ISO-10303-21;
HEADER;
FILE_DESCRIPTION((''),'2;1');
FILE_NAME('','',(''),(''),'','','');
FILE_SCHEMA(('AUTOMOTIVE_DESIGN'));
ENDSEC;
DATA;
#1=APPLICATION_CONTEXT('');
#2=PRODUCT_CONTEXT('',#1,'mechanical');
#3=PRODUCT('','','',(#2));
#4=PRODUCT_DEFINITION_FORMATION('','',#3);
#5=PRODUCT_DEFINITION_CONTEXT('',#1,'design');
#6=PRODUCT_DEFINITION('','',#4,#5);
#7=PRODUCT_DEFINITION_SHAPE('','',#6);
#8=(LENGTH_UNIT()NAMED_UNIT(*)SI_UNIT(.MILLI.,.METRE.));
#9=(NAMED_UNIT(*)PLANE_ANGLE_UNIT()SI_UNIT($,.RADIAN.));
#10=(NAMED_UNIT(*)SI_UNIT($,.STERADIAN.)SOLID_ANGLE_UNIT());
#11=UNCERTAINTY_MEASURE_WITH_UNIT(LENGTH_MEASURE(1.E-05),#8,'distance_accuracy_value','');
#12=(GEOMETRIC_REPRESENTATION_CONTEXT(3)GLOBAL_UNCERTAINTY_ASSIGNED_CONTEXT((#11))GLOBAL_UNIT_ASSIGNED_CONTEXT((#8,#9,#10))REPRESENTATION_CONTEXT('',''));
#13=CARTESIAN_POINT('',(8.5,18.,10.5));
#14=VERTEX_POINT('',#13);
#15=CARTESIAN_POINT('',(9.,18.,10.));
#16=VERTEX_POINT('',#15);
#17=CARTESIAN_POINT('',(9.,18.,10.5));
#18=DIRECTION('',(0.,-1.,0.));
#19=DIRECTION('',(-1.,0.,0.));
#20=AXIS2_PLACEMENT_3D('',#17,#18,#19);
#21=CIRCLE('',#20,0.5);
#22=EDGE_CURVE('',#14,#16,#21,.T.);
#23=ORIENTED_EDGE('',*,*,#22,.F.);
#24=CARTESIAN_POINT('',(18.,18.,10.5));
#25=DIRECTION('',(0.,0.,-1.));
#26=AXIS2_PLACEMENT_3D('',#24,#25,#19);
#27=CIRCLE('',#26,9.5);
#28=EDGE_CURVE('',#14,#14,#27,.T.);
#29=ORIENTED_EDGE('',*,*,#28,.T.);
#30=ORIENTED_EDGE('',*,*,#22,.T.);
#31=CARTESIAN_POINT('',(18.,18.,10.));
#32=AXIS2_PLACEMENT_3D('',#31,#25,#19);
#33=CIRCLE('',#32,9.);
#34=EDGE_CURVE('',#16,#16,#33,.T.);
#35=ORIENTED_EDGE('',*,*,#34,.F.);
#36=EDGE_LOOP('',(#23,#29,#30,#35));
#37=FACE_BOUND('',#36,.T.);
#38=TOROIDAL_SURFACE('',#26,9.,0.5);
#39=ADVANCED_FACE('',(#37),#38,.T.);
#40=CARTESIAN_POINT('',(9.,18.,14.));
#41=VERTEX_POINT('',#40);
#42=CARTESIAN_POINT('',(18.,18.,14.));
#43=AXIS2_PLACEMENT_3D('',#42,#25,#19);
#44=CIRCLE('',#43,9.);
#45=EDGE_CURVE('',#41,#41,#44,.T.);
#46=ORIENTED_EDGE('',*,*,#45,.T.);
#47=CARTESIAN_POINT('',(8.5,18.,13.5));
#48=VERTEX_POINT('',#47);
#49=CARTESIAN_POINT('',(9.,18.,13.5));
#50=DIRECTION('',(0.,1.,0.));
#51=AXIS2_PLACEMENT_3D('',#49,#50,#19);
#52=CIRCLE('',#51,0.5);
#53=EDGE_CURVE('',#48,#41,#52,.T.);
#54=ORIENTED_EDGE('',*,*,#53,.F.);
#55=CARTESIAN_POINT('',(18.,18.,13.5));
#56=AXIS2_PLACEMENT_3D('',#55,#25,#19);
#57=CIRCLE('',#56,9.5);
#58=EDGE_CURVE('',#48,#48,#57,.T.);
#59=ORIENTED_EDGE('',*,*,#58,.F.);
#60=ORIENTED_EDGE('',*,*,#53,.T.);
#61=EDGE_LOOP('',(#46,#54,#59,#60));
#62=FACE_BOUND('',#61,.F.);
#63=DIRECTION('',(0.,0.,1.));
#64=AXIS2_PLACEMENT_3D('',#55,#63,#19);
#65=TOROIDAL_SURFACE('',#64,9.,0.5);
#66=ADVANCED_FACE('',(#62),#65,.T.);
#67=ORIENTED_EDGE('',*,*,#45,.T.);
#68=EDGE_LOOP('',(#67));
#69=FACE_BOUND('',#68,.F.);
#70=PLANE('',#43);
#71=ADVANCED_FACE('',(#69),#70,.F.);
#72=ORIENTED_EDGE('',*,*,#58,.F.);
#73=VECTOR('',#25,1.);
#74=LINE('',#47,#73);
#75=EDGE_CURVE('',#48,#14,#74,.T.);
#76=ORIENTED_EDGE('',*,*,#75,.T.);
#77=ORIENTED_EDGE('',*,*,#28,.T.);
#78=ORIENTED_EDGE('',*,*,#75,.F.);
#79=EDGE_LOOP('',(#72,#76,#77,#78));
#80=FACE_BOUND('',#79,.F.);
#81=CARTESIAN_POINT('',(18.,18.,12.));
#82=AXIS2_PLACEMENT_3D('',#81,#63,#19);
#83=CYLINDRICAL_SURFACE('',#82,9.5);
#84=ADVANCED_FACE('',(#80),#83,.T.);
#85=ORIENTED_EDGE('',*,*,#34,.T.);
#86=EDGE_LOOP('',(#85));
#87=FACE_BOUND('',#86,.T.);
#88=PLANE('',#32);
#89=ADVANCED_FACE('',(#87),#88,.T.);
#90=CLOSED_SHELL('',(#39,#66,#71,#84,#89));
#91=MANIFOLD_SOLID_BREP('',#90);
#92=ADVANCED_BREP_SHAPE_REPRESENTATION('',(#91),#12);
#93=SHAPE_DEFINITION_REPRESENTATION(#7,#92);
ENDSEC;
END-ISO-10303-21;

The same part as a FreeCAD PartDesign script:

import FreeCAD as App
import Part
import Sketcher
from FreeCAD import Vector
Q = App.Units.Quantity


def edges_at(feature, points):
    """Names of the edges that pass closest to the given points."""
    edges = feature.Shape.Edges
    near = lambda p: min(range(len(edges)), key=lambda i: edges[i].distToShape(Part.Vertex(*p))[0])
    return sorted({f"Edge{near(p) + 1}" for p in points})

doc = App.newDocument("Part")
body = doc.addObject("PartDesign::Body", "Body")

sketch1 = body.newObject("Sketcher::SketchObject", "Sketch")
sketch1.AttachmentSupport = (doc.getObject("XY_Plane"), [""])
sketch1.MapMode = "FlatFace"
sketch1.AttachmentOffset = App.Placement(Vector(0, 0, 12), App.Rotation())
sketch1.addGeometry(Part.Circle(Vector(0, 0, 0), Vector(0, 0, 1), 10), False)
sketch1.addConstraint(Sketcher.Constraint("Coincident", 0, 3, -1, 1))
sketch1.addConstraint(Sketcher.Constraint("Diameter", 0, Q("19 mm")))
pad1 = body.newObject("PartDesign::Pad", "Pad")
pad1.Profile = sketch1
pad1.Length = 2
doc.recompute()

fillet = body.newObject("PartDesign::Fillet", "Fillet")
fillet.Base = (pad1, edges_at(pad1, [(-9.5, 0, 14)]))
fillet.Radius = 0.5
body2 = doc.addObject("PartDesign::Body", "Body001")

sketch2 = body2.newObject("Sketcher::SketchObject", "Sketch001")
sketch2.AttachmentSupport = (doc.getObject("XY_Plane001"), [""])
sketch2.MapMode = "FlatFace"
sketch2.AttachmentOffset = App.Placement(Vector(0, 0, 11), App.Rotation())
sketch2.addGeometry(Part.Circle(Vector(0, 0, 0), Vector(0, 0, 1), 10), False)
sketch2.addConstraint(Sketcher.Constraint("Coincident", 0, 3, -1, 1))
sketch2.addConstraint(Sketcher.Constraint("Diameter", 0, Q("19 mm")))
pad2 = body2.newObject("PartDesign::Pad", "Pad001")
pad2.Profile = sketch2
pad2.Length = 2
doc.recompute()

fillet2 = body2.newObject("PartDesign::Fillet", "Fillet001")
fillet2.Base = (pad2, edges_at(pad2, [(-9.5, 0, 11)]))
fillet2.Radius = 0.5
body3 = doc.addObject("PartDesign::Body", "Body002")
doc.recompute()

body2.Placement = App.Placement(Vector(0, 0, -1), App.Rotation(Vector(0, 0, 1), 0))
boolean = body3.newObject("PartDesign::Boolean", "Boolean")
boolean.Type = "Fuse"
boolean.addObjects([body2])
doc.recompute()

boolean2 = body3.newObject("PartDesign::Boolean", "Boolean001")
boolean2.Type = "Fuse"
boolean2.addObjects([body])
body4 = doc.addObject("PartDesign::Body", "Body003")
doc.recompute()

body3.Placement = App.Placement(Vector(18, 18, 24), App.Rotation(Vector(0, 1, 0), 180))
boolean3 = body4.newObject("PartDesign::Boolean", "Boolean002")
boolean3.Type = "Fuse"
boolean3.addObjects([body3])

doc.recompute()
